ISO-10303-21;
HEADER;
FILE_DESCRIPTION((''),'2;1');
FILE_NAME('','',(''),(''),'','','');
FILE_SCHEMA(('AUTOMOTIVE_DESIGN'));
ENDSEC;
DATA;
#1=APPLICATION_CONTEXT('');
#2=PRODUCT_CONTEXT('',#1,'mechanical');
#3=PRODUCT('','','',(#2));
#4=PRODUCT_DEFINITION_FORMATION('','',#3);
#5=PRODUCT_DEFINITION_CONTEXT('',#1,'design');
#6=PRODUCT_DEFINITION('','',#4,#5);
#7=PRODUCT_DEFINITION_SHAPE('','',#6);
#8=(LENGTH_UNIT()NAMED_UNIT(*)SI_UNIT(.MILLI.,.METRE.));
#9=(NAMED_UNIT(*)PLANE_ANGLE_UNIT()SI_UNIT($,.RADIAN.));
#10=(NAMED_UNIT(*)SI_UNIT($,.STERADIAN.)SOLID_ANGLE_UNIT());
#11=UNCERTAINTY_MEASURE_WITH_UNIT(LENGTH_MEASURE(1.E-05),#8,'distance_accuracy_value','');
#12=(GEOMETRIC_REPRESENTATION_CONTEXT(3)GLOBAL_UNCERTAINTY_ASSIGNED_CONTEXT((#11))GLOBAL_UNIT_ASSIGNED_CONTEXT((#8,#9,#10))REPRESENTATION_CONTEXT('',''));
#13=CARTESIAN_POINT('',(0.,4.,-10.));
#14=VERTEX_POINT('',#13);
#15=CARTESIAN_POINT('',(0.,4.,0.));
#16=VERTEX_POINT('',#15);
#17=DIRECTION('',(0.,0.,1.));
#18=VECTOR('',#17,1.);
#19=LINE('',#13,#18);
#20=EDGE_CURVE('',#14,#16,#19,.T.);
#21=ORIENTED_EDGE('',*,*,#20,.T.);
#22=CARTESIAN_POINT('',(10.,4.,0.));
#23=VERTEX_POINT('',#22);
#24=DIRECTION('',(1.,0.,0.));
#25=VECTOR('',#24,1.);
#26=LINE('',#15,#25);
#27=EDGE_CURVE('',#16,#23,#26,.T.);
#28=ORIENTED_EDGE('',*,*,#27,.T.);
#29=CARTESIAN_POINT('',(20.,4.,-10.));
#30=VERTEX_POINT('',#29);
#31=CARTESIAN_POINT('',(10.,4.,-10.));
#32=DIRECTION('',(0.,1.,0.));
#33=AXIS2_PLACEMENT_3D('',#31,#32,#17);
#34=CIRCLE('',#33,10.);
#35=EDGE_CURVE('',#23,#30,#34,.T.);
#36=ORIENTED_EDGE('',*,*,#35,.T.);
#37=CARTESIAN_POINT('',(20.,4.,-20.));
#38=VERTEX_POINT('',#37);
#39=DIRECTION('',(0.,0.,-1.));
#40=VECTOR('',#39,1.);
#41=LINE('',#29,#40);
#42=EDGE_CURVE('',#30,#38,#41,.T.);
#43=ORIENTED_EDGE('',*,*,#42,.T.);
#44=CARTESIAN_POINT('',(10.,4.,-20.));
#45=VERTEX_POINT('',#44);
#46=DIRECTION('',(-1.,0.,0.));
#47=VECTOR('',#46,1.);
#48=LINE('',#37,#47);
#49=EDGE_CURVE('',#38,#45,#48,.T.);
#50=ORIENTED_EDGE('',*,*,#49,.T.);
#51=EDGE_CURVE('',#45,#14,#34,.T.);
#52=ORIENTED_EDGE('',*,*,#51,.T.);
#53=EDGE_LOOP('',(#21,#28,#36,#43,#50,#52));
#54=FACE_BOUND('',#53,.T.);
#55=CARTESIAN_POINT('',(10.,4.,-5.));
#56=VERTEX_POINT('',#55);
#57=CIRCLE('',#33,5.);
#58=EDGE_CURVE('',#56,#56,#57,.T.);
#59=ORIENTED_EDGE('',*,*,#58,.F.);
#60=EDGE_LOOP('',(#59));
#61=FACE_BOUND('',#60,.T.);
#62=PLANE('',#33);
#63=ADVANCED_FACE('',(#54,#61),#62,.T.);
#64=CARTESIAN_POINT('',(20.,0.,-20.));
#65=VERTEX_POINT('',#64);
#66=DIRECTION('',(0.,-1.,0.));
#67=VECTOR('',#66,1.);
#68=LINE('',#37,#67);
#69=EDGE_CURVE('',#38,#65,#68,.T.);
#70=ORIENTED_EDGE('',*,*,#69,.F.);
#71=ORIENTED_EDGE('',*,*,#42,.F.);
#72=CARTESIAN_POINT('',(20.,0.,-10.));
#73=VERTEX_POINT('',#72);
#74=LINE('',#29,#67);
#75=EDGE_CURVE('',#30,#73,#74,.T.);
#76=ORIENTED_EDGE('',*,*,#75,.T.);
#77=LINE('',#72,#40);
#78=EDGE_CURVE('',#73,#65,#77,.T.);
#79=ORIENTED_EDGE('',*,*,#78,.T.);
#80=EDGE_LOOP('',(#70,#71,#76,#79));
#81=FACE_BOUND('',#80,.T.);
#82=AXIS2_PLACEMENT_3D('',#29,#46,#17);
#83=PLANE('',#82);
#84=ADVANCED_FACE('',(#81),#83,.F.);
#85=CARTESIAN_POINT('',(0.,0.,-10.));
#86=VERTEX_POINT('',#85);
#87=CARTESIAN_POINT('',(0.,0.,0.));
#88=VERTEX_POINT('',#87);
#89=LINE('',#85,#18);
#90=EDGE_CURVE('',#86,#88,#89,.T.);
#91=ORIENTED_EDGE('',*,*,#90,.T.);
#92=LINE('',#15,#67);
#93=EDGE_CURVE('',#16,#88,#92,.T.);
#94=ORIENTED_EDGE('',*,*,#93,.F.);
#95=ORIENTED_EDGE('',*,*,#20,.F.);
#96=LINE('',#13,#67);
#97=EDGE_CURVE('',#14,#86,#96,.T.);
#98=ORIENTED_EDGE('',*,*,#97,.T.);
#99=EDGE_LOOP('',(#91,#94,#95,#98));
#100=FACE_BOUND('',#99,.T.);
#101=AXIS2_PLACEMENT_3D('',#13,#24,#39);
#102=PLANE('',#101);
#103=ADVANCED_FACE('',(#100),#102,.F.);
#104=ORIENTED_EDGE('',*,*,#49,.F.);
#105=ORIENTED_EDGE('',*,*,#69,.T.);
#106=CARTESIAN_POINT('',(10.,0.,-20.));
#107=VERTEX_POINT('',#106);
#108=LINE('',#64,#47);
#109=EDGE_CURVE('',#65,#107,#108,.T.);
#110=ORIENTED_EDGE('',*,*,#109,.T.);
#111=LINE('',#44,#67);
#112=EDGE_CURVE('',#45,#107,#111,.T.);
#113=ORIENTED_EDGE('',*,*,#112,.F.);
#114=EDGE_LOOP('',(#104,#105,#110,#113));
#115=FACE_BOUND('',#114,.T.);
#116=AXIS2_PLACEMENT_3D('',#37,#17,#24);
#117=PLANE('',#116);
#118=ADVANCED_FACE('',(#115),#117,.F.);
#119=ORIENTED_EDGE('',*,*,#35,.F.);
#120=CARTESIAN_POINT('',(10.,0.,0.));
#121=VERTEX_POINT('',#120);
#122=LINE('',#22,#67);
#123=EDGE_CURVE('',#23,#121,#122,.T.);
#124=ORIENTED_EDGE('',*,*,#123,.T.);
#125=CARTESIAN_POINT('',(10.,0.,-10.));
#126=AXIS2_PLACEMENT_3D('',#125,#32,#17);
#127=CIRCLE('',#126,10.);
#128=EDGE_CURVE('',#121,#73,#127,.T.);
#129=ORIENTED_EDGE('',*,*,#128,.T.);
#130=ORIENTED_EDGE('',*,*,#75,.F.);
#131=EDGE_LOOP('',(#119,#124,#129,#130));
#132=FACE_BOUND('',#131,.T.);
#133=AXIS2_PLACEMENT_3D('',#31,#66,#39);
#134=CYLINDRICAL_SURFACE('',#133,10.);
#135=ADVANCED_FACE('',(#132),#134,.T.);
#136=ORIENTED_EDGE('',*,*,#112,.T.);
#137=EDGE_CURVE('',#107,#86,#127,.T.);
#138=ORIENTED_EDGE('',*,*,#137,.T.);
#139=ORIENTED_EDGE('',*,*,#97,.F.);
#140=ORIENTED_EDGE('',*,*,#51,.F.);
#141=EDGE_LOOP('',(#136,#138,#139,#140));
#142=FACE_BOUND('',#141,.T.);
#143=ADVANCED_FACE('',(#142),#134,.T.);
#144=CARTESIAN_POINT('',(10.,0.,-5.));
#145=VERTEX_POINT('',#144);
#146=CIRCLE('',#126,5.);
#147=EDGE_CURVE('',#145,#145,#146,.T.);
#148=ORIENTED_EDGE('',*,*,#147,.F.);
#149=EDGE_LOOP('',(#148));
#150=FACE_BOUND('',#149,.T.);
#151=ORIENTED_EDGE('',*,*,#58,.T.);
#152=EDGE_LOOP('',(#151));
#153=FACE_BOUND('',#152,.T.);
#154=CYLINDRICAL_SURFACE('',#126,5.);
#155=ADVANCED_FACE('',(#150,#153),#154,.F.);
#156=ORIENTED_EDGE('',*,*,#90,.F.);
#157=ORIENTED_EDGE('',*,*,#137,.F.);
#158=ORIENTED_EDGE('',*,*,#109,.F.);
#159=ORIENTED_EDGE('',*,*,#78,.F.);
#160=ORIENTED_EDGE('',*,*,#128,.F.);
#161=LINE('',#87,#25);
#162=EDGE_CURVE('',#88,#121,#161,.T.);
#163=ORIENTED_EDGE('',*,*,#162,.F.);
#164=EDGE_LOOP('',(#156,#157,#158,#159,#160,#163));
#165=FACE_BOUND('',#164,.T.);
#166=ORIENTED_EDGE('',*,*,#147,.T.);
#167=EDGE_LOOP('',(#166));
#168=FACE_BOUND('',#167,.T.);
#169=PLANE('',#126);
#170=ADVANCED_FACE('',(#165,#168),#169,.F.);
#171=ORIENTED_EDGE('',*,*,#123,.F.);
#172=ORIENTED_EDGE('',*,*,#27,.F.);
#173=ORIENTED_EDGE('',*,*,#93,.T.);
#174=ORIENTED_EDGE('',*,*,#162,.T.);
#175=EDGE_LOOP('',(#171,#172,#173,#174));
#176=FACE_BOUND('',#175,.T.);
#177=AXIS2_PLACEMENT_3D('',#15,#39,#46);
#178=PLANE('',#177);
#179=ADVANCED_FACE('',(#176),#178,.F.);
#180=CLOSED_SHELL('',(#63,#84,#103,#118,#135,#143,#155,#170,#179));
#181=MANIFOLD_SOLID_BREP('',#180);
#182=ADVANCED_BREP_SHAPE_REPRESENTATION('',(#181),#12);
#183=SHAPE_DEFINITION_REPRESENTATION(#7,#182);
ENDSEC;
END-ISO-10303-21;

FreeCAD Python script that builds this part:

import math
import FreeCAD as App
import Part
import Sketcher

V = App.Vector

doc = App.newDocument("Part")
body = doc.addObject("PartDesign::Body", "Body")

# Sketch on XZ plane
sketch1 = body.newObject("Sketcher::SketchObject", "Sketch")
sketch1.AttachmentSupport = (doc.getObject("XZ_Plane"), [""])
sketch1.MapMode = "FlatFace"
sketch1.addGeometry(Part.LineSegment(V(0, 0, 0), V(10, 0, 0)), False)
sketch1.addGeometry(Part.ArcOfCircle(Part.Circle(V(10, -10, 0), V(0, 0, 1), 10), math.radians(0), math.radians(90)), False)
sketch1.addGeometry(Part.LineSegment(V(20, -10, 0), V(20, -20, 0)), False)
sketch1.addGeometry(Part.LineSegment(V(20, -20, 0), V(10, -20, 0)), False)
sketch1.addGeometry(Part.ArcOfCircle(Part.Circle(V(10, -10, 0), V(0, 0, 1), 10), math.radians(180), math.radians(270)), False)
sketch1.addGeometry(Part.LineSegment(V(0, -10, 0), V(0, 0, 0)), False)
sketch1.addConstraint(Sketcher.Constraint("Tangent", 0, 2, 1, 2))
sketch1.addConstraint(Sketcher.Constraint("Tangent", 1, 1, 2, 1))
sketch1.addConstraint(Sketcher.Constraint("Coincident", 2, 2, 3, 1))
sketch1.addConstraint(Sketcher.Constraint("Tangent", 3, 2, 4, 2))
sketch1.addConstraint(Sketcher.Constraint("Tangent", 4, 1, 5, 1))
sketch1.addConstraint(Sketcher.Constraint("Coincident", 5, 2, 0, 1))
sketch1.addConstraint(Sketcher.Constraint("Horizontal", 0))
sketch1.addConstraint(Sketcher.Constraint("Vertical", 2))
sketch1.addConstraint(Sketcher.Constraint("Horizontal", 3))
sketch1.addConstraint(Sketcher.Constraint("Vertical", 5))
sketch1.addConstraint(Sketcher.Constraint("Coincident", 5, 2, -1, 1))
sketch1.addConstraint(Sketcher.Constraint("Coincident", 4, 3, 1, 3))
sketch1.addConstraint(Sketcher.Constraint("Equal", 1, 4))
sketch1.addConstraint(Sketcher.Constraint("Radius", 1, 10.0))
pad1 = body.newObject("PartDesign::Pad", "Pad")
pad1.Profile = sketch1
pad1.Length = 4
pad1.Reversed = True

# Sketch on XZ plane
sketch2 = body.newObject("Sketcher::SketchObject", "Sketch001")
sketch2.AttachmentSupport = (doc.getObject("XZ_Plane"), [""])
sketch2.MapMode = "FlatFace"
sketch2.AttachmentOffset = App.Placement(V(0, 0, -4), App.Rotation())
sketch2.addGeometry(Part.Circle(V(10, -10, 0), V(0, 0, 1), 5), False)
sketch2.addConstraint(Sketcher.Constraint("Diameter", 0, 10.0))
sketch2.addConstraint(Sketcher.Constraint("DistanceX", -1, 1, 0, 3, 10.0))
sketch2.addConstraint(Sketcher.Constraint("DistanceY", 0, 3, -1, 1, 10.0))
pocket1 = body.newObject("PartDesign::Pocket", "Pocket")
pocket1.Profile = sketch2
pocket1.Type = "ThroughAll"
pocket1.Reversed = True

doc.recompute()
